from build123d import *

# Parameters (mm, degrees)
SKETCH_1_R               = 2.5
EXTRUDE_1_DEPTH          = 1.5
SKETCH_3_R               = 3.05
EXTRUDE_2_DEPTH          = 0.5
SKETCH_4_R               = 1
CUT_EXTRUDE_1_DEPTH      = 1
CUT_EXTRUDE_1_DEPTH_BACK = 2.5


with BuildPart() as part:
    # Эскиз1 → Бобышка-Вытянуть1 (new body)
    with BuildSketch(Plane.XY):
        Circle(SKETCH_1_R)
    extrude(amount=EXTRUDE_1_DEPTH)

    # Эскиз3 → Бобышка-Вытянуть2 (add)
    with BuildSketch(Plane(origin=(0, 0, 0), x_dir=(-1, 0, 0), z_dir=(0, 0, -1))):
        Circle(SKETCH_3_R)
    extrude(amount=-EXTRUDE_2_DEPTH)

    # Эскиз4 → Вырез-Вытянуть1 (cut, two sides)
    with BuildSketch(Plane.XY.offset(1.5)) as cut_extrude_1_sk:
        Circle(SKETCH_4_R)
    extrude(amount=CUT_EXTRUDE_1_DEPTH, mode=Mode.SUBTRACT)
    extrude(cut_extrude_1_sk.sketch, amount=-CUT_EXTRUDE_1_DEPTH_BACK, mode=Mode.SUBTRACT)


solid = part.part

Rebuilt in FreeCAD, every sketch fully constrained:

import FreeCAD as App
import Part
import Sketcher

V = App.Vector

doc = App.newDocument("Part")
params = doc.addObject("Spreadsheet::Sheet", "Params")
for row, (alias, value) in enumerate([
    ("sketch1_diameter", "5 mm"),
    ("pad1_length", "1.5 mm"),
    ("sketch2_diameter", "6.1 mm"),
    ("pad2_length", "0.5 mm"),
    ("sketch3_diameter", "2 mm"),
], start=1):
    params.set(f"A{row}", alias)
    params.set(f"B{row}", "=" + value)
    params.setAlias(f"B{row}", alias)

body = doc.addObject("PartDesign::Body", "Body")

sketch1 = body.newObject("Sketcher::SketchObject", "Sketch")
sketch1.AttachmentSupport = (doc.getObject("XY_Plane"), [""])
sketch1.MapMode = "FlatFace"
sketch1.addGeometry(Part.Circle(V(0, 0, 0), V(0, 0, 1), 2.5), False)
sketch1.addConstraint([
    Sketcher.Constraint("Coincident", 0, 3, -1, 1),
    Sketcher.Constraint("Diameter", 0, 5.0),
])
sketch1.setExpression("Constraints[1]", "Params.sketch1_diameter")
pad1 = body.newObject("PartDesign::Pad", "Pad")
pad1.Profile = sketch1
pad1.setExpression("Length", "Params.pad1_length")

sketch2 = body.newObject("Sketcher::SketchObject", "Sketch001")
sketch2.AttachmentSupport = (doc.getObject("XY_Plane"), [""])
sketch2.MapMode = "FlatFace"
sketch2.addGeometry(Part.Circle(V(0, 0, 0), V(0, 0, 1), 3), False)
sketch2.addConstraint([
    Sketcher.Constraint("Coincident", 0, 3, -1, 1),
    Sketcher.Constraint("Diameter", 0, 6.1),
])
sketch2.setExpression("Constraints[1]", "Params.sketch2_diameter")
pad2 = body.newObject("PartDesign::Pad", "Pad001")
pad2.Profile = sketch2
pad2.setExpression("Length", "Params.pad2_length")

sketch3 = body.newObject("Sketcher::SketchObject", "Sketch002")
sketch3.AttachmentSupport = (doc.getObject("XY_Plane"), [""])
sketch3.MapMode = "FlatFace"
sketch3.AttachmentOffset = App.Placement(V(0, 0, 1.5), App.Rotation())
sketch3.addGeometry(Part.Circle(V(0, 0, 0), V(0, 0, 1), 1), False)
sketch3.addConstraint([
    Sketcher.Constraint("Coincident", 0, 3, -1, 1),
    Sketcher.Constraint("Diameter", 0, 2.0),
])
sketch3.setExpression("Constraints[1]", "Params.sketch3_diameter")
pocket1 = body.newObject("PartDesign::Pocket", "Pocket")
pocket1.Profile = sketch3
pocket1.Type = "ThroughAll"
pocket1.Midplane = True

doc.recompute()
